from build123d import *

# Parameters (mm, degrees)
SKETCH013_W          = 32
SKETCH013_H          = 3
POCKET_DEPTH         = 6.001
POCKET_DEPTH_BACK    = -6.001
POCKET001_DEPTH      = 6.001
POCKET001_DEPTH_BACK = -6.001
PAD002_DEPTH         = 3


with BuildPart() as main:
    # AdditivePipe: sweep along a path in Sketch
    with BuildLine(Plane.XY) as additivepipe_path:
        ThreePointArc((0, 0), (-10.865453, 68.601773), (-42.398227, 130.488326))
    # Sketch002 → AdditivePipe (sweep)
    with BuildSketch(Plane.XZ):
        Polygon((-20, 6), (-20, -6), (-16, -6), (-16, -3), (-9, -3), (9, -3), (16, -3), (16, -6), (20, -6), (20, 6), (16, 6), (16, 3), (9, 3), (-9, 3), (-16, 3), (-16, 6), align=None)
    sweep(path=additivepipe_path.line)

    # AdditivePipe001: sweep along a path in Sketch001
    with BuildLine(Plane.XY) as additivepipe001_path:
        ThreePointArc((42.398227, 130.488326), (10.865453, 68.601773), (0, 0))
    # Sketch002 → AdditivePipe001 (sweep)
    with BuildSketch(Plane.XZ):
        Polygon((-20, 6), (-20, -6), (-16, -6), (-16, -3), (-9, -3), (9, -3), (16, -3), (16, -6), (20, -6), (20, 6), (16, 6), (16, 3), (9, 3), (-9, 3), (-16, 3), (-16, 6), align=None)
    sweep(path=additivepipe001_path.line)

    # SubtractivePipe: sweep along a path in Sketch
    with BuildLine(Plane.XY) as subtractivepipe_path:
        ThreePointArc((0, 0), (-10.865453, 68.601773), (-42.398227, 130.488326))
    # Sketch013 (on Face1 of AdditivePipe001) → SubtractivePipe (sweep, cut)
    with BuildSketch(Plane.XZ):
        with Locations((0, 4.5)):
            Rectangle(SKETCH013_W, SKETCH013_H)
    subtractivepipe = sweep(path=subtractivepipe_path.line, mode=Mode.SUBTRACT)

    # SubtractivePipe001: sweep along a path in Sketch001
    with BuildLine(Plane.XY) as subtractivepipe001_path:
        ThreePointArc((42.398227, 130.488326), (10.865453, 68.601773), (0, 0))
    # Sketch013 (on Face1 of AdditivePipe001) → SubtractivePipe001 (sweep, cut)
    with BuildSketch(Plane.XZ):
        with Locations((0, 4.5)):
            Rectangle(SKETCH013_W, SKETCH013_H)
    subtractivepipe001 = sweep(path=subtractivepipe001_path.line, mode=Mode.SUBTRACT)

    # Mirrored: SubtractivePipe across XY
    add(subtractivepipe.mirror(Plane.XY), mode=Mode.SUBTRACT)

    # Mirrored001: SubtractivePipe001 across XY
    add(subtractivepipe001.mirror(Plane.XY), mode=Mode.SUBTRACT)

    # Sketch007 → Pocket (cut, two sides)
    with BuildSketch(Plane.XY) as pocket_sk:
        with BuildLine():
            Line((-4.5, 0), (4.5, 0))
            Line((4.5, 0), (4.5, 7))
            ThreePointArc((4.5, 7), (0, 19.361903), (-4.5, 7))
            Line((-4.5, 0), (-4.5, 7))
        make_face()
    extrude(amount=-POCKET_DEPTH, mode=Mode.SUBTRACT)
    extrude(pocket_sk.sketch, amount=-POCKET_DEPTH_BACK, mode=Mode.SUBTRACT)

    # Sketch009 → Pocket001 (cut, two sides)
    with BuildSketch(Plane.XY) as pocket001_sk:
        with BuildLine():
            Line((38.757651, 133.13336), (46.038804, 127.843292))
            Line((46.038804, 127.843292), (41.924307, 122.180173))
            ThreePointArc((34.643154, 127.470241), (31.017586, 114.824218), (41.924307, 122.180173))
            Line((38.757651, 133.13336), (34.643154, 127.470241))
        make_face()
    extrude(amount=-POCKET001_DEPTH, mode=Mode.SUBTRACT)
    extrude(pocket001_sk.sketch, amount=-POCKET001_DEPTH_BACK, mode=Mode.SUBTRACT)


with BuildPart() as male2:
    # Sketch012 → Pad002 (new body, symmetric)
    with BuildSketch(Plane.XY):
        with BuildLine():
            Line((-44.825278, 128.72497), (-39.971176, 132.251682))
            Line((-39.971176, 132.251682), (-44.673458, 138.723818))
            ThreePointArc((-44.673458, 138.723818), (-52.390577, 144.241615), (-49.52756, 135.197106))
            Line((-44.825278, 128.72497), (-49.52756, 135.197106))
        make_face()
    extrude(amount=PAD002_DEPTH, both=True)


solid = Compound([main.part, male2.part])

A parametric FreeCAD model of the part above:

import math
import FreeCAD as App
import Part
import Sketcher
from FreeCAD import Vector
Q = App.Units.Quantity

doc = App.newDocument("Part")
body = doc.addObject("PartDesign::Body", "Body")

sketch1 = body.newObject("Sketcher::SketchObject", "Sketch")
sketch1.AttachmentSupport = (doc.getObject("XZ_Plane"), [""])
sketch1.MapMode = "FlatFace"
sketch1.addGeometry([
    Part.LineSegment(Vector(-20, 6, 0), Vector(-20, -6, 0)),
    Part.LineSegment(Vector(-20, -6, 0), Vector(-16, -6, 0)),
    Part.LineSegment(Vector(-16, -6, 0), Vector(-16, -3, 0)),
    Part.LineSegment(Vector(-16, -3, 0), Vector(16, -3, 0)),
    Part.LineSegment(Vector(16, -3, 0), Vector(16, -6, 0)),
    Part.LineSegment(Vector(16, -6, 0), Vector(20, -6, 0)),
    Part.LineSegment(Vector(20, -6, 0), Vector(20, 6, 0)),
    Part.LineSegment(Vector(20, 6, 0), Vector(16, 6, 0)),
    Part.LineSegment(Vector(16, 6, 0), Vector(16, 3, 0)),
    Part.LineSegment(Vector(16, 3, 0), Vector(-16, 3, 0)),
    Part.LineSegment(Vector(-16, 3, 0), Vector(-16, 6, 0)),
    Part.LineSegment(Vector(-16, 6, 0), Vector(-20, 6, 0)),
], False)
sketch1.addConstraint([
    Sketcher.Constraint("Coincident", 0, 2, 1, 1),
    Sketcher.Constraint("Coincident", 1, 2, 2, 1),
    Sketcher.Constraint("Coincident", 2, 2, 3, 1),
    Sketcher.Constraint("Coincident", 3, 2, 4, 1),
    Sketcher.Constraint("Coincident", 4, 2, 5, 1),
    Sketcher.Constraint("Coincident", 5, 2, 6, 1),
    Sketcher.Constraint("Coincident", 6, 2, 7, 1),
    Sketcher.Constraint("Coincident", 7, 2, 8, 1),
    Sketcher.Constraint("Coincident", 8, 2, 9, 1),
    Sketcher.Constraint("Coincident", 9, 2, 10, 1),
    Sketcher.Constraint("Coincident", 10, 2, 11, 1),
    Sketcher.Constraint("Coincident", 11, 2, 0, 1),
    Sketcher.Constraint("Vertical", 0),
    Sketcher.Constraint("Horizontal", 1),
    Sketcher.Constraint("Vertical", 2),
    Sketcher.Constraint("Horizontal", 3),
    Sketcher.Constraint("Vertical", 4),
    Sketcher.Constraint("Horizontal", 5),
    Sketcher.Constraint("Vertical", 6),
    Sketcher.Constraint("Horizontal", 7),
    Sketcher.Constraint("Vertical", 8),
    Sketcher.Constraint("Horizontal", 9),
    Sketcher.Constraint("Vertical", 10),
    Sketcher.Constraint("Horizontal", 11),
    Sketcher.Constraint("Symmetric", 0, 2, 6, 2, -1, 1),
    Sketcher.Constraint("Symmetric", 2, 2, 8, 2, -1, 1),
    Sketcher.Constraint("Symmetric", 4, 2, 10, 2, -1, 1),
    Sketcher.Constraint("Symmetric", 1, 2, 4, 2, -2),
    Sketcher.Constraint("DistanceX", 1, 1, 1, 2, Q("4 mm")),
    Sketcher.Constraint("DistanceX", 3, 1, 3, 2, Q("32 mm")),
    Sketcher.Constraint("DistanceY", 0, 2, 0, 1, Q("12 mm")),
    Sketcher.Constraint("DistanceY", 2, 1, 2, 2, Q("3 mm")),
])

sketch2 = body.newObject("Sketcher::SketchObject", "Sketch001")
sketch2.AttachmentSupport = (doc.getObject("XY_Plane"), [""])
sketch2.MapMode = "FlatFace"
sketch2.addGeometry(Part.ArcOfCircle(Part.Circle(Vector(-222, 0, 0), Vector(0, 0, 1), 222), math.radians(0), math.radians(36)), False)
sketch2.addConstraint([
    Sketcher.Constraint("Coincident", 0, 1, -1, 1),
    Sketcher.Constraint("Radius", 0, Q("221.999993 mm")),
    Sketcher.Constraint("DistanceX", 0, 2, -1, 1, Q("42.398227 mm")),
    Sketcher.Constraint("DistanceY", -1, 1, 0, 2, Q("130.488326 mm")),
])
doc.recompute()

additivepipe = body.newObject("PartDesign::AdditivePipe", "AdditivePipe")
additivepipe.Profile = sketch1
additivepipe.Spine = (sketch2, ["Edge1"])

sketch3 = body.newObject("Sketcher::SketchObject", "Sketch002")
sketch3.AttachmentSupport = (doc.getObject("XZ_Plane"), [""])
sketch3.MapMode = "FlatFace"
sketch3.addGeometry([
    Part.LineSegment(Vector(-20, 6, 0), Vector(-20, -6, 0)),
    Part.LineSegment(Vector(-20, -6, 0), Vector(-16, -6, 0)),
    Part.LineSegment(Vector(-16, -6, 0), Vector(-16, -3, 0)),
    Part.LineSegment(Vector(-16, -3, 0), Vector(16, -3, 0)),
    Part.LineSegment(Vector(16, -3, 0), Vector(16, -6, 0)),
    Part.LineSegment(Vector(16, -6, 0), Vector(20, -6, 0)),
    Part.LineSegment(Vector(20, -6, 0), Vector(20, 6, 0)),
    Part.LineSegment(Vector(20, 6, 0), Vector(16, 6, 0)),
    Part.LineSegment(Vector(16, 6, 0), Vector(16, 3, 0)),
    Part.LineSegment(Vector(16, 3, 0), Vector(-16, 3, 0)),
    Part.LineSegment(Vector(-16, 3, 0), Vector(-16, 6, 0)),
    Part.LineSegment(Vector(-16, 6, 0), Vector(-20, 6, 0)),
], False)
sketch3.addConstraint([
    Sketcher.Constraint("Coincident", 0, 2, 1, 1),
    Sketcher.Constraint("Coincident", 1, 2, 2, 1),
    Sketcher.Constraint("Coincident", 2, 2, 3, 1),
    Sketcher.Constraint("Coincident", 3, 2, 4, 1),
    Sketcher.Constraint("Coincident", 4, 2, 5, 1),
    Sketcher.Constraint("Coincident", 5, 2, 6, 1),
    Sketcher.Constraint("Coincident", 6, 2, 7, 1),
    Sketcher.Constraint("Coincident", 7, 2, 8, 1),
    Sketcher.Constraint("Coincident", 8, 2, 9, 1),
    Sketcher.Constraint("Coincident", 9, 2, 10, 1),
    Sketcher.Constraint("Coincident", 10, 2, 11, 1),
    Sketcher.Constraint("Coincident", 11, 2, 0, 1),
    Sketcher.Constraint("Vertical", 0),
    Sketcher.Constraint("Horizontal", 1),
    Sketcher.Constraint("Vertical", 2),
    Sketcher.Constraint("Horizontal", 3),
    Sketcher.Constraint("Vertical", 4),
    Sketcher.Constraint("Horizontal", 5),
    Sketcher.Constraint("Vertical", 6),
    Sketcher.Constraint("Horizontal", 7),
    Sketcher.Constraint("Vertical", 8),
    Sketcher.Constraint("Horizontal", 9),
    Sketcher.Constraint("Vertical", 10),
    Sketcher.Constraint("Horizontal", 11),
    Sketcher.Constraint("Symmetric", 0, 2, 6, 2, -1, 1),
    Sketcher.Constraint("Symmetric", 2, 2, 8, 2, -1, 1),
    Sketcher.Constraint("Symmetric", 4, 2, 10, 2, -1, 1),
    Sketcher.Constraint("Symmetric", 1, 2, 4, 2, -2),
    Sketcher.Constraint("DistanceX", 1, 1, 1, 2, Q("4 mm")),
    Sketcher.Constraint("DistanceX", 3, 1, 3, 2, Q("32 mm")),
    Sketcher.Constraint("DistanceY", 0, 2, 0, 1, Q("12 mm")),
    Sketcher.Constraint("DistanceY", 2, 1, 2, 2, Q("3 mm")),
])

sketch4 = body.newObject("Sketcher::SketchObject", "Sketch003")
sketch4.AttachmentSupport = (doc.getObject("XY_Plane"), [""])
sketch4.MapMode = "FlatFace"
sketch4.addGeometry(Part.ArcOfCircle(Part.Circle(Vector(222, 0, 0), Vector(0, 0, 1), 222), math.radians(144), math.radians(180)), False)
sketch4.addConstraint([
    Sketcher.Constraint("Coincident", 0, 2, -1, 1),
    Sketcher.Constraint("Radius", 0, Q("221.999993 mm")),
    Sketcher.Constraint("DistanceX", -1, 1, 0, 1, Q("42.398227 mm")),
    Sketcher.Constraint("DistanceY", -1, 1, 0, 1, Q("130.488326 mm")),
])
doc.recompute()

additivepipe2 = body.newObject("PartDesign::AdditivePipe", "AdditivePipe001")
additivepipe2.Profile = sketch3
additivepipe2.Spine = (sketch4, ["Edge1"])

sketch5 = body.newObject("Sketcher::SketchObject", "Sketch004")
sketch5.AttachmentSupport = (doc.getObject("XZ_Plane"), [""])
sketch5.MapMode = "FlatFace"
sketch5.addGeometry([
    Part.LineSegment(Vector(-16, 6, 0), Vector(-16, 3, 0)),
    Part.LineSegment(Vector(-16, 3, 0), Vector(16, 3, 0)),
    Part.LineSegment(Vector(16, 3, 0), Vector(16, 6, 0)),
    Part.LineSegment(Vector(16, 6, 0), Vector(-16, 6, 0)),
], False)
sketch5.addConstraint([
    Sketcher.Constraint("Coincident", 0, 2, 1, 1),
    Sketcher.Constraint("Coincident", 1, 2, 2, 1),
    Sketcher.Constraint("Coincident", 2, 2, 3, 1),
    Sketcher.Constraint("Coincident", 3, 2, 0, 1),
    Sketcher.Constraint("Vertical", 0),
    Sketcher.Constraint("Horizontal", 1),
    Sketcher.Constraint("Vertical", 2),
    Sketcher.Constraint("Horizontal", 3),
    Sketcher.Constraint("DistanceX", 1, 1, 1, 2, Q("32 mm")),
    Sketcher.Constraint("DistanceY", 0, 2, 0, 1, Q("3 mm")),
    Sketcher.Constraint("DistanceX", 0, 2, -1, 1, Q("16 mm")),
    Sketcher.Constraint("DistanceY", -1, 1, 0, 2, Q("3 mm")),
])

sketch6 = body.newObject("Sketcher::SketchObject", "Sketch005")
sketch6.AttachmentSupport = (doc.getObject("XY_Plane"), [""])
sketch6.MapMode = "FlatFace"
sketch6.addGeometry(Part.ArcOfCircle(Part.Circle(Vector(-222, 0, 0), Vector(0, 0, 1), 222), math.radians(0), math.radians(36)), False)
sketch6.addConstraint([
    Sketcher.Constraint("Coincident", 0, 1, -1, 1),
    Sketcher.Constraint("Radius", 0, Q("221.999993 mm")),
    Sketcher.Constraint("DistanceX", 0, 2, -1, 1, Q("42.398227 mm")),
    Sketcher.Constraint("DistanceY", -1, 1, 0, 2, Q("130.488326 mm")),
])
doc.recompute()

subtractivepipe = body.newObject("PartDesign::SubtractivePipe", "SubtractivePipe")
subtractivepipe.Profile = sketch5
subtractivepipe.Spine = (sketch6, ["Edge1"])

sketch7 = body.newObject("Sketcher::SketchObject", "Sketch006")
sketch7.AttachmentSupport = (doc.getObject("XZ_Plane"), [""])
sketch7.MapMode = "FlatFace"
sketch7.addGeometry([
    Part.LineSegment(Vector(-16, 6, 0), Vector(-16, 3, 0)),
    Part.LineSegment(Vector(-16, 3, 0), Vector(16, 3, 0)),
    Part.LineSegment(Vector(16, 3, 0), Vector(16, 6, 0)),
    Part.LineSegment(Vector(16, 6, 0), Vector(-16, 6, 0)),
], False)
sketch7.addConstraint([
    Sketcher.Constraint("Coincident", 0, 2, 1, 1),
    Sketcher.Constraint("Coincident", 1, 2, 2, 1),
    Sketcher.Constraint("Coincident", 2, 2, 3, 1),
    Sketcher.Constraint("Coincident", 3, 2, 0, 1),
    Sketcher.Constraint("Vertical", 0),
    Sketcher.Constraint("Horizontal", 1),
    Sketcher.Constraint("Vertical", 2),
    Sketcher.Constraint("Horizontal", 3),
    Sketcher.Constraint("DistanceX", 1, 1, 1, 2, Q("32 mm")),
    Sketcher.Constraint("DistanceY", 0, 2, 0, 1, Q("3 mm")),
    Sketcher.Constraint("DistanceX", 0, 2, -1, 1, Q("16 mm")),
    Sketcher.Constraint("DistanceY", -1, 1, 0, 2, Q("3 mm")),
])

sketch8 = body.newObject("Sketcher::SketchObject", "Sketch007")
sketch8.AttachmentSupport = (doc.getObject("XY_Plane"), [""])
sketch8.MapMode = "FlatFace"
sketch8.addGeometry(Part.ArcOfCircle(Part.Circle(Vector(222, 0, 0), Vector(0, 0, 1), 222), math.radians(144), math.radians(180)), False)
sketch8.addConstraint([
    Sketcher.Constraint("Coincident", 0, 2, -1, 1),
    Sketcher.Constraint("Radius", 0, Q("221.999993 mm")),
    Sketcher.Constraint("DistanceX", -1, 1, 0, 1, Q("42.398227 mm")),
    Sketcher.Constraint("DistanceY", -1, 1, 0, 1, Q("130.488326 mm")),
])
doc.recompute()

subtractivepipe2 = body.newObject("PartDesign::SubtractivePipe", "SubtractivePipe001")
subtractivepipe2.Profile = sketch7
subtractivepipe2.Spine = (sketch8, ["Edge1"])
doc.recompute()

mirrored = body.newObject("PartDesign::Mirrored", "Mirrored")
mirrored.Originals = [subtractivepipe]
mirrored.MirrorPlane = (doc.getObject("XY_Plane"), [""])
body.Tip = mirrored
doc.recompute()

mirrored2 = body.newObject("PartDesign::Mirrored", "Mirrored001")
mirrored2.Originals = [subtractivepipe2]
mirrored2.MirrorPlane = (doc.getObject("XY_Plane"), [""])
body.Tip = mirrored2

sketch9 = body.newObject("Sketcher::SketchObject", "Sketch008")
sketch9.AttachmentSupport = (doc.getObject("XY_Plane"), [""])
sketch9.MapMode = "FlatFace"
sketch9.addGeometry([
    Part.LineSegment(Vector(-4, 0, 0), Vector(4, 0, 0)),
    Part.LineSegment(Vector(4, 0, 0), Vector(4, 7, 0)),
    Part.ArcOfCircle(Part.Circle(Vector(0, 12, 0), Vector(0, 0, 1), 7), math.radians(-50), math.radians(230)),
    Part.LineSegment(Vector(-4, 7, 0), Vector(-4, 0, 0)),
], False)
sketch9.addConstraint([
    Sketcher.Constraint("Coincident", 0, 2, 1, 1),
    Sketcher.Constraint("Coincident", 1, 2, 2, 1),
    Sketcher.Constraint("Coincident", 2, 2, 3, 1),
    Sketcher.Constraint("Coincident", 3, 2, 0, 1),
    Sketcher.Constraint("Horizontal", 0),
    Sketcher.Constraint("Vertical", 1),
    Sketcher.Constraint("Vertical", 3),
    Sketcher.Constraint("Symmetric", 0, 2, 3, 2, -1, 1),
    Sketcher.Constraint("PointOnObject", 2, 3, -2),
    Sketcher.Constraint("Radius", 2, Q("7 mm")),
    Sketcher.Constraint("DistanceX", 0, 1, 0, 2, Q("9 mm")),
    Sketcher.Constraint("DistanceY", 1, 1, 1, 2, Q("7 mm")),
])
pocket1 = body.newObject("PartDesign::Pocket", "Pocket")
pocket1.Profile = sketch9
pocket1.Type = "ThroughAll"
pocket1.Midplane = True

sketch10 = body.newObject("Sketcher::SketchObject", "Sketch009")
sketch10.AttachmentSupport = (doc.getObject("XY_Plane"), [""])
sketch10.MapMode = "FlatFace"
sketch10.addGeometry([
    Part.LineSegment(Vector(46, 128, 0), Vector(39, 133, 0)),
    Part.LineSegment(Vector(39, 133, 0), Vector(35, 127, 0)),
    Part.ArcOfCircle(Part.Circle(Vector(35, 120, 0), Vector(0, 0, 1), 7), math.radians(94), math.radians(374)),
    Part.LineSegment(Vector(42, 122, 0), Vector(46, 128, 0)),
], False)
sketch10.addConstraint([
    Sketcher.Constraint("Coincident", 0, 2, 1, 1),
    Sketcher.Constraint("Coincident", 1, 2, 2, 1),
    Sketcher.Constraint("Coincident", 2, 2, 3, 1),
    Sketcher.Constraint("Coincident", 3, 2, 0, 1),
    Sketcher.Constraint("Perpendicular", 0, 1),
    Sketcher.Constraint("Parallel", 1, 3),
    Sketcher.Constraint("Equal", 1, 3),
    Sketcher.Constraint("Radius", 2, Q("7 mm")),
    Sketcher.Constraint("Angle", 0, Q("143.999996 deg")),
    Sketcher.Constraint("Distance", 0, Q("9 mm")),
    Sketcher.Constraint("Distance", 1, Q("7 mm")),
    Sketcher.Constraint("DistanceX", -1, 1, 0, 2, Q("38.757651 mm")),
    Sketcher.Constraint("DistanceY", -1, 1, 0, 2, Q("133.13336 mm")),
])
pocket2 = body.newObject("PartDesign::Pocket", "Pocket001")
pocket2.Profile = sketch10
pocket2.Type = "ThroughAll"
pocket2.Midplane = True
body2 = doc.addObject("PartDesign::Body", "Body001")

sketch11 = body2.newObject("Sketcher::SketchObject", "Sketch010")
sketch11.AttachmentSupport = (doc.getObject("XY_Plane001"), [""])
sketch11.MapMode = "FlatFace"
sketch11.addGeometry([
    Part.LineSegment(Vector(-45, 129, 0), Vector(-40, 132, 0)),
    Part.LineSegment(Vector(-40, 132, 0), Vector(-45, 139, 0)),
    Part.ArcOfCircle(Part.Circle(Vector(-49, 140, 0), Vector(0, 0, 1), 5), math.radians(-17), math.radians(269)),
    Part.LineSegment(Vector(-50, 135, 0), Vector(-45, 129, 0)),
], False)
sketch11.addConstraint([
    Sketcher.Constraint("Coincident", 0, 2, 1, 1),
    Sketcher.Constraint("Coincident", 1, 2, 2, 1),
    Sketcher.Constraint("Coincident", 2, 2, 3, 1),
    Sketcher.Constraint("Coincident", 3, 2, 0, 1),
    Sketcher.Constraint("Perpendicular", 0, 1),
    Sketcher.Constraint("Parallel", 1, 3),
    Sketcher.Constraint("Equal", 1, 3),
    Sketcher.Constraint("Radius", 2, Q("5 mm")),
    Sketcher.Constraint("Angle", 0, Q("36.000004 deg")),
    Sketcher.Constraint("Distance", 0, Q("6 mm")),
    Sketcher.Constraint("Distance", 1, Q("8 mm")),
    Sketcher.Constraint("DistanceX", 2, 3, -1, 1, Q("49.45165 mm")),
    Sketcher.Constraint("DistanceY", -1, 1, 2, 3, Q("140.19653 mm")),
])
pad1 = body2.newObject("PartDesign::Pad", "Pad")
pad1.Profile = sketch11
pad1.Length = 6
pad1.Midplane = True

doc.recompute()
